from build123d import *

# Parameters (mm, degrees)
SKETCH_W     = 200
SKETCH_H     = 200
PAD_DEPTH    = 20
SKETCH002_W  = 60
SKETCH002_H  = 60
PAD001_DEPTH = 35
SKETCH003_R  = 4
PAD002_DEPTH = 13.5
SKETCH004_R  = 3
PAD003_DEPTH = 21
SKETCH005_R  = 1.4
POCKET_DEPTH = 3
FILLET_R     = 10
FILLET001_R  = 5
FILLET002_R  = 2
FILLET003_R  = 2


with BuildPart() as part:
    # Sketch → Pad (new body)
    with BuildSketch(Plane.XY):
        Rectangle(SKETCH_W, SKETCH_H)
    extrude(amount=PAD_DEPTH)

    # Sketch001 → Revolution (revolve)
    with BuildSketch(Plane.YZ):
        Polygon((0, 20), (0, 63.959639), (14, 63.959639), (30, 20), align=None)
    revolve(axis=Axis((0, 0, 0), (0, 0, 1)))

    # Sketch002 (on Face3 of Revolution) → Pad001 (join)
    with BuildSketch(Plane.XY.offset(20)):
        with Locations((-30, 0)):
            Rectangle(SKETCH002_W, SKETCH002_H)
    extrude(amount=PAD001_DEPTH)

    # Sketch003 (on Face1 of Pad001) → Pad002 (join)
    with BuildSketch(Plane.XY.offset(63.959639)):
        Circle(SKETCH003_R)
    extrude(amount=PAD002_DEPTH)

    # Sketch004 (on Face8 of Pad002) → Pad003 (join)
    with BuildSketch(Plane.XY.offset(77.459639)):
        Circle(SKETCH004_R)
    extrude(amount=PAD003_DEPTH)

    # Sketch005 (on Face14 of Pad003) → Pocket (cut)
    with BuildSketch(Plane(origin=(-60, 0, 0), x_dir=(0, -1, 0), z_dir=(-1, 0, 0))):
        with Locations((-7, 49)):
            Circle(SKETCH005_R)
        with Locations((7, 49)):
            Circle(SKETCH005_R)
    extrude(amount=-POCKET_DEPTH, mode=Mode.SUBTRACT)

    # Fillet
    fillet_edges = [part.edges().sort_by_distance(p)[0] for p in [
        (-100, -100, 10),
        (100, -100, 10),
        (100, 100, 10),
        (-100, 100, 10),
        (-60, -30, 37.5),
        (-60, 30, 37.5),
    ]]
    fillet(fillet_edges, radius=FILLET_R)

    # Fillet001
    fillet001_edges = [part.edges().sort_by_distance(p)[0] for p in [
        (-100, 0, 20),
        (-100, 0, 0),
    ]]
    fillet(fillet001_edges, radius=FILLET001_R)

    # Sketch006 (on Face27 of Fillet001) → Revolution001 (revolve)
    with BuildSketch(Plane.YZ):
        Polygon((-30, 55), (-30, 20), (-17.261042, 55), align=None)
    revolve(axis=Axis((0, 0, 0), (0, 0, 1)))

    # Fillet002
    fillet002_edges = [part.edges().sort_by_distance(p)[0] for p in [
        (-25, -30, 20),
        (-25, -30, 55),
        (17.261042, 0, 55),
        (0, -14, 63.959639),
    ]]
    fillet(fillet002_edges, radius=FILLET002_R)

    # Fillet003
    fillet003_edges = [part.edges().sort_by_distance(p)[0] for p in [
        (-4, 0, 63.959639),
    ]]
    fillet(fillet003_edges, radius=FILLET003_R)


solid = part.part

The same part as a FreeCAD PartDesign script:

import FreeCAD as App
import Part
import Sketcher
from FreeCAD import Vector
Q = App.Units.Quantity


def edges_at(feature, points):
    """Names of the edges that pass closest to the given points."""
    edges = feature.Shape.Edges
    near = lambda p: min(range(len(edges)), key=lambda i: edges[i].distToShape(Part.Vertex(*p))[0])
    return sorted({f"Edge{near(p) + 1}" for p in points})

doc = App.newDocument("Part")
body = doc.addObject("PartDesign::Body", "Body")

sketch1 = body.newObject("Sketcher::SketchObject", "Sketch")
sketch1.AttachmentSupport = (doc.getObject("XY_Plane"), [""])
sketch1.MapMode = "FlatFace"
sketch1.addGeometry(Part.LineSegment(Vector(-100, 100, 0), Vector(-100, -100, 0)), False)
sketch1.addGeometry(Part.LineSegment(Vector(-100, -100, 0), Vector(100, -100, 0)), False)
sketch1.addGeometry(Part.LineSegment(Vector(100, -100, 0), Vector(100, 100, 0)), False)
sketch1.addGeometry(Part.LineSegment(Vector(100, 100, 0), Vector(-100, 100, 0)), False)
sketch1.addConstraint(Sketcher.Constraint("Coincident", 0, 2, 1, 1))
sketch1.addConstraint(Sketcher.Constraint("Coincident", 1, 2, 2, 1))
sketch1.addConstraint(Sketcher.Constraint("Coincident", 2, 2, 3, 1))
sketch1.addConstraint(Sketcher.Constraint("Coincident", 3, 2, 0, 1))
sketch1.addConstraint(Sketcher.Constraint("Vertical", 0))
sketch1.addConstraint(Sketcher.Constraint("Horizontal", 1))
sketch1.addConstraint(Sketcher.Constraint("Vertical", 2))
sketch1.addConstraint(Sketcher.Constraint("Horizontal", 3))
sketch1.addConstraint(Sketcher.Constraint("Symmetric", 0, 2, 2, 2, -1, 1))
sketch1.addConstraint(Sketcher.Constraint("Equal", 3, 0))
sketch1.addConstraint(Sketcher.Constraint("DistanceX", 1, 1, 1, 2, Q("200 mm")))
pad1 = body.newObject("PartDesign::Pad", "Pad")
pad1.Profile = sketch1
pad1.Length = 20

sketch2 = body.newObject("Sketcher::SketchObject", "Sketch001")
sketch2.AttachmentSupport = (doc.getObject("YZ_Plane"), [""])
sketch2.MapMode = "FlatFace"
sketch2.addGeometry(Part.LineSegment(Vector(0, 64, 0), Vector(0, 20, 0)), False)
sketch2.addGeometry(Part.LineSegment(Vector(0, 20, 0), Vector(30, 20, 0)), False)
sketch2.addGeometry(Part.LineSegment(Vector(30, 20, 0), Vector(14, 64, 0)), False)
sketch2.addGeometry(Part.LineSegment(Vector(14, 64, 0), Vector(0, 64, 0)), False)
sketch2.addConstraint(Sketcher.Constraint("Coincident", 0, 2, 1, 1))
sketch2.addConstraint(Sketcher.Constraint("Coincident", 1, 2, 2, 1))
sketch2.addConstraint(Sketcher.Constraint("Coincident", 2, 2, 3, 1))
sketch2.addConstraint(Sketcher.Constraint("Coincident", 3, 2, 0, 1))
sketch2.addConstraint(Sketcher.Constraint("Vertical", 0))
sketch2.addConstraint(Sketcher.Constraint("Horizontal", 1))
sketch2.addConstraint(Sketcher.Constraint("Horizontal", 3))
sketch2.addConstraint(Sketcher.Constraint("PointOnObject", 0, 2, -2))
sketch2.addConstraint(Sketcher.Constraint("DistanceX", 1, 1, 1, 2, Q("30 mm")))
sketch2.addConstraint(Sketcher.Constraint("DistanceX", 3, 2, 3, 1, Q("14 mm")))
sketch2.addConstraint(Sketcher.Constraint("Angle", 2, Q("110 deg")))
sketch2.addConstraint(Sketcher.Constraint("DistanceY", -1, 1, 0, 2, Q("20 mm")))
revolution = body.newObject("PartDesign::Revolution", "Revolution")
revolution.Profile = sketch2
revolution.ReferenceAxis = (sketch2, ["V_Axis"])
revolution.Angle = 360

sketch3 = body.newObject("Sketcher::SketchObject", "Sketch002")
sketch3.AttachmentSupport = (doc.getObject("XY_Plane"), [""])
sketch3.MapMode = "FlatFace"
sketch3.AttachmentOffset = App.Placement(Vector(0, 0, 20), App.Rotation())
sketch3.addGeometry(Part.LineSegment(Vector(-60, 30, 0), Vector(-60, -30, 0)), False)
sketch3.addGeometry(Part.LineSegment(Vector(-60, -30, 0), Vector(0, -30, 0)), False)
sketch3.addGeometry(Part.LineSegment(Vector(0, -30, 0), Vector(0, 30, 0)), False)
sketch3.addGeometry(Part.LineSegment(Vector(0, 30, 0), Vector(-60, 30, 0)), False)
sketch3.addConstraint(Sketcher.Constraint("Coincident", 0, 2, 1, 1))
sketch3.addConstraint(Sketcher.Constraint("Coincident", 1, 2, 2, 1))
sketch3.addConstraint(Sketcher.Constraint("Coincident", 2, 2, 3, 1))
sketch3.addConstraint(Sketcher.Constraint("Coincident", 3, 2, 0, 1))
sketch3.addConstraint(Sketcher.Constraint("Vertical", 0))
sketch3.addConstraint(Sketcher.Constraint("Horizontal", 1))
sketch3.addConstraint(Sketcher.Constraint("Vertical", 2))
sketch3.addConstraint(Sketcher.Constraint("Horizontal", 3))
sketch3.addConstraint(Sketcher.Constraint("Symmetric", 1, 2, 2, 2, -1, 1))
sketch3.addConstraint(Sketcher.Constraint("Equal", 3, 0))
sketch3.addConstraint(Sketcher.Constraint("DistanceX", 1, 1, 1, 2, Q("60 mm")))
pad2 = body.newObject("PartDesign::Pad", "Pad001")
pad2.Profile = sketch3
pad2.Length = 35

sketch4 = body.newObject("Sketcher::SketchObject", "Sketch003")
sketch4.AttachmentSupport = (doc.getObject("XY_Plane"), [""])
sketch4.MapMode = "FlatFace"
sketch4.AttachmentOffset = App.Placement(Vector(0, 0, 63.959639), App.Rotation())
sketch4.addGeometry(Part.Circle(Vector(0, 0, 0), Vector(0, 0, 1), 4), False)
sketch4.addConstraint(Sketcher.Constraint("Coincident", 0, 3, -1, 1))
sketch4.addConstraint(Sketcher.Constraint("Diameter", 0, Q("8 mm")))
pad3 = body.newObject("PartDesign::Pad", "Pad002")
pad3.Profile = sketch4
pad3.Length = 13.5

sketch5 = body.newObject("Sketcher::SketchObject", "Sketch004")
sketch5.AttachmentSupport = (doc.getObject("XY_Plane"), [""])
sketch5.MapMode = "FlatFace"
sketch5.AttachmentOffset = App.Placement(Vector(0, 0, 77.459639), App.Rotation())
sketch5.addGeometry(Part.Circle(Vector(0, 0, 0), Vector(0, 0, 1), 3), False)
sketch5.addConstraint(Sketcher.Constraint("Coincident", 0, 3, -1, 1))
sketch5.addConstraint(Sketcher.Constraint("Diameter", 0, Q("6 mm")))
pad4 = body.newObject("PartDesign::Pad", "Pad003")
pad4.Profile = sketch5
pad4.Length = 21

sketch6 = body.newObject("Sketcher::SketchObject", "Sketch005")
sketch6.AttachmentSupport = (doc.getObject("YZ_Plane"), [""])
sketch6.MapMode = "FlatFace"
sketch6.AttachmentOffset = App.Placement(Vector(0, 0, -60), App.Rotation())
sketch6.addGeometry(Part.Circle(Vector(7, 49, 0), Vector(0, 0, 1), 1.4), False)
sketch6.addGeometry(Part.Circle(Vector(-7, 49, 0), Vector(0, 0, 1), 1.4), False)
sketch6.addConstraint(Sketcher.Constraint("Equal", 0, 1))
sketch6.addConstraint(Sketcher.Constraint("Symmetric", 0, 3, 1, 3, -2))
sketch6.addConstraint(Sketcher.Constraint("Diameter", 0, Q("2.8 mm")))
sketch6.addConstraint(Sketcher.Constraint("DistanceX", -1, 1, 0, 3, Q("7 mm")))
sketch6.addConstraint(Sketcher.Constraint("DistanceY", -1, 1, 0, 3, Q("49 mm")))
pocket1 = body.newObject("PartDesign::Pocket", "Pocket")
pocket1.Profile = sketch6
pocket1.Length = 3
pocket1.Reversed = True
doc.recompute()

fillet = body.newObject("PartDesign::Fillet", "Fillet")
fillet.Base = (pocket1, edges_at(pocket1, [
    (-100, -100, 10),
    (100, -100, 10),
    (100, 100, 10),
    (-100, 100, 10),
    (-60, -30, 37.5),
    (-60, 30, 37.5),
]))
fillet.Radius = 10
doc.recompute()

fillet2 = body.newObject("PartDesign::Fillet", "Fillet001")
fillet2.Base = (fillet, edges_at(fillet, [(-100, 0, 20), (-100, 0, 0)]))
fillet2.Radius = 5

sketch7 = body.newObject("Sketcher::SketchObject", "Sketch006")
sketch7.AttachmentSupport = (doc.getObject("YZ_Plane"), [""])
sketch7.MapMode = "FlatFace"
sketch7.addGeometry(Part.LineSegment(Vector(-30, 55, 0), Vector(-30, 20, 0)), False)
sketch7.addGeometry(Part.LineSegment(Vector(-30, 20, 0), Vector(-17, 55, 0)), False)
sketch7.addGeometry(Part.LineSegment(Vector(-17, 55, 0), Vector(-30, 55, 0)), False)
sketch7.addConstraint(Sketcher.Constraint("Coincident", 0, 2, 1, 1))
sketch7.addConstraint(Sketcher.Constraint("Coincident", 1, 2, 2, 1))
sketch7.addConstraint(Sketcher.Constraint("Coincident", 2, 2, 0, 1))
sketch7.addConstraint(Sketcher.Constraint("Vertical", 0))
sketch7.addConstraint(Sketcher.Constraint("Horizontal", 2))
sketch7.addConstraint(Sketcher.Constraint("DistanceY", 0, 2, 0, 1, Q("35 mm")))
sketch7.addConstraint(Sketcher.Constraint("Angle", 1, Q("70 deg")))
sketch7.addConstraint(Sketcher.Constraint("DistanceX", 0, 2, -1, 1, Q("30 mm")))
sketch7.addConstraint(Sketcher.Constraint("DistanceY", -1, 1, 0, 2, Q("20 mm")))
revolution2 = body.newObject("PartDesign::Revolution", "Revolution001")
revolution2.Profile = sketch7
revolution2.ReferenceAxis = (sketch7, ["V_Axis"])
revolution2.Angle = 360
doc.recompute()

fillet3 = body.newObject("PartDesign::Fillet", "Fillet002")
fillet3.Base = (revolution2, edges_at(revolution2, [
    (-25, -30, 20),
    (-25, -30, 55),
    (0, -17.261, 55),
    (0, -14, 63.96),
]))
fillet3.Radius = 2
doc.recompute()

fillet4 = body.newObject("PartDesign::Fillet", "Fillet003")
fillet4.Base = (fillet3, edges_at(fillet3, [(-4, 0, 63.96)]))
fillet4.Radius = 2

doc.recompute()
